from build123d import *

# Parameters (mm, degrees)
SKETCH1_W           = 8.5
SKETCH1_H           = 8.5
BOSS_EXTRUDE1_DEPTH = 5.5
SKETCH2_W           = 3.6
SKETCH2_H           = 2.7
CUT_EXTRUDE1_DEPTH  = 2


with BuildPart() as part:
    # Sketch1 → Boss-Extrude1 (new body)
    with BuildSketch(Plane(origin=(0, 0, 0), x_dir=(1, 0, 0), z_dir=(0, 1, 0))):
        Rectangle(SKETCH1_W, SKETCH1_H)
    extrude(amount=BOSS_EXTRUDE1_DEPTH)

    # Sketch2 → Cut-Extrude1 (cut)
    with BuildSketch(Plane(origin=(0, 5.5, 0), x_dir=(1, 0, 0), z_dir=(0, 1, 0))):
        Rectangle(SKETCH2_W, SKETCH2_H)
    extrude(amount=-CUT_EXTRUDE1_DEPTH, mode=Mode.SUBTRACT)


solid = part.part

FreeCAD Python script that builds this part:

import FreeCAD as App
import Part
import Sketcher

V = App.Vector

doc = App.newDocument("Part")
body = doc.addObject("PartDesign::Body", "Body")

# Sketch on XZ plane
sketch1 = doc.addObject("Sketcher::SketchObject", "Sketch")
body.addObject(sketch1)
sketch1.AttachmentSupport = (doc.XZ_Plane, [""])
sketch1.MapMode = "FlatFace"
sketch1.addGeometry(Part.LineSegment(V(-4, -4, 0), V(-4, 4, 0)), False)
sketch1.addGeometry(Part.LineSegment(V(-4, 4, 0), V(4, 4, 0)), False)
sketch1.addGeometry(Part.LineSegment(V(4, 4, 0), V(4, -4, 0)), False)
sketch1.addGeometry(Part.LineSegment(V(4, -4, 0), V(-4, -4, 0)), False)
sketch1.addConstraint(Sketcher.Constraint("Coincident", 0, 2, 1, 1))
sketch1.addConstraint(Sketcher.Constraint("Coincident", 1, 2, 2, 1))
sketch1.addConstraint(Sketcher.Constraint("Coincident", 2, 2, 3, 1))
sketch1.addConstraint(Sketcher.Constraint("Coincident", 3, 2, 0, 1))
sketch1.addConstraint(Sketcher.Constraint("Vertical", 0))
sketch1.addConstraint(Sketcher.Constraint("Horizontal", 1))
sketch1.addConstraint(Sketcher.Constraint("Vertical", 2))
sketch1.addConstraint(Sketcher.Constraint("Horizontal", 3))
sketch1.addConstraint(Sketcher.Constraint("Symmetric", 0, 2, 2, 2, -1, 1))
sketch1.addConstraint(Sketcher.Constraint("Equal", 3, 0))
sketch1.addConstraint(Sketcher.Constraint("DistanceX", 1, 1, 1, 2, 8.5))
pad1 = doc.addObject("PartDesign::Pad", "Pad")
body.addObject(pad1)
pad1.Profile = sketch1
pad1.Length = 5.5
pad1.Reversed = True

# Sketch on XZ plane
sketch2 = doc.addObject("Sketcher::SketchObject", "Sketch001")
body.addObject(sketch2)
sketch2.AttachmentSupport = (doc.XZ_Plane, [""])
sketch2.MapMode = "FlatFace"
sketch2.AttachmentOffset = App.Placement(V(0, 0, -5.5), App.Rotation())
sketch2.addGeometry(Part.LineSegment(V(-1.8, -1.4, 0), V(-1.8, 1.4, 0)), False)
sketch2.addGeometry(Part.LineSegment(V(-1.8, 1.4, 0), V(1.8, 1.4, 0)), False)
sketch2.addGeometry(Part.LineSegment(V(1.8, 1.4, 0), V(1.8, -1.4, 0)), False)
sketch2.addGeometry(Part.LineSegment(V(1.8, -1.4, 0), V(-1.8, -1.4, 0)), False)
sketch2.addConstraint(Sketcher.Constraint("Coincident", 0, 2, 1, 1))
sketch2.addConstraint(Sketcher.Constraint("Coincident", 1, 2, 2, 1))
sketch2.addConstraint(Sketcher.Constraint("Coincident", 2, 2, 3, 1))
sketch2.addConstraint(Sketcher.Constraint("Coincident", 3, 2, 0, 1))
sketch2.addConstraint(Sketcher.Constraint("Vertical", 0))
sketch2.addConstraint(Sketcher.Constraint("Horizontal", 1))
sketch2.addConstraint(Sketcher.Constraint("Vertical", 2))
sketch2.addConstraint(Sketcher.Constraint("Horizontal", 3))
sketch2.addConstraint(Sketcher.Constraint("Symmetric", 0, 2, 2, 2, -1, 1))
sketch2.addConstraint(Sketcher.Constraint("DistanceX", 1, 1, 1, 2, 3.6))
sketch2.addConstraint(Sketcher.Constraint("DistanceY", 0, 1, 0, 2, 2.7))
pocket1 = doc.addObject("PartDesign::Pocket", "Pocket")
body.addObject(pocket1)
pocket1.Profile = sketch2
pocket1.Length = 2
pocket1.Reversed = True

doc.recompute()
